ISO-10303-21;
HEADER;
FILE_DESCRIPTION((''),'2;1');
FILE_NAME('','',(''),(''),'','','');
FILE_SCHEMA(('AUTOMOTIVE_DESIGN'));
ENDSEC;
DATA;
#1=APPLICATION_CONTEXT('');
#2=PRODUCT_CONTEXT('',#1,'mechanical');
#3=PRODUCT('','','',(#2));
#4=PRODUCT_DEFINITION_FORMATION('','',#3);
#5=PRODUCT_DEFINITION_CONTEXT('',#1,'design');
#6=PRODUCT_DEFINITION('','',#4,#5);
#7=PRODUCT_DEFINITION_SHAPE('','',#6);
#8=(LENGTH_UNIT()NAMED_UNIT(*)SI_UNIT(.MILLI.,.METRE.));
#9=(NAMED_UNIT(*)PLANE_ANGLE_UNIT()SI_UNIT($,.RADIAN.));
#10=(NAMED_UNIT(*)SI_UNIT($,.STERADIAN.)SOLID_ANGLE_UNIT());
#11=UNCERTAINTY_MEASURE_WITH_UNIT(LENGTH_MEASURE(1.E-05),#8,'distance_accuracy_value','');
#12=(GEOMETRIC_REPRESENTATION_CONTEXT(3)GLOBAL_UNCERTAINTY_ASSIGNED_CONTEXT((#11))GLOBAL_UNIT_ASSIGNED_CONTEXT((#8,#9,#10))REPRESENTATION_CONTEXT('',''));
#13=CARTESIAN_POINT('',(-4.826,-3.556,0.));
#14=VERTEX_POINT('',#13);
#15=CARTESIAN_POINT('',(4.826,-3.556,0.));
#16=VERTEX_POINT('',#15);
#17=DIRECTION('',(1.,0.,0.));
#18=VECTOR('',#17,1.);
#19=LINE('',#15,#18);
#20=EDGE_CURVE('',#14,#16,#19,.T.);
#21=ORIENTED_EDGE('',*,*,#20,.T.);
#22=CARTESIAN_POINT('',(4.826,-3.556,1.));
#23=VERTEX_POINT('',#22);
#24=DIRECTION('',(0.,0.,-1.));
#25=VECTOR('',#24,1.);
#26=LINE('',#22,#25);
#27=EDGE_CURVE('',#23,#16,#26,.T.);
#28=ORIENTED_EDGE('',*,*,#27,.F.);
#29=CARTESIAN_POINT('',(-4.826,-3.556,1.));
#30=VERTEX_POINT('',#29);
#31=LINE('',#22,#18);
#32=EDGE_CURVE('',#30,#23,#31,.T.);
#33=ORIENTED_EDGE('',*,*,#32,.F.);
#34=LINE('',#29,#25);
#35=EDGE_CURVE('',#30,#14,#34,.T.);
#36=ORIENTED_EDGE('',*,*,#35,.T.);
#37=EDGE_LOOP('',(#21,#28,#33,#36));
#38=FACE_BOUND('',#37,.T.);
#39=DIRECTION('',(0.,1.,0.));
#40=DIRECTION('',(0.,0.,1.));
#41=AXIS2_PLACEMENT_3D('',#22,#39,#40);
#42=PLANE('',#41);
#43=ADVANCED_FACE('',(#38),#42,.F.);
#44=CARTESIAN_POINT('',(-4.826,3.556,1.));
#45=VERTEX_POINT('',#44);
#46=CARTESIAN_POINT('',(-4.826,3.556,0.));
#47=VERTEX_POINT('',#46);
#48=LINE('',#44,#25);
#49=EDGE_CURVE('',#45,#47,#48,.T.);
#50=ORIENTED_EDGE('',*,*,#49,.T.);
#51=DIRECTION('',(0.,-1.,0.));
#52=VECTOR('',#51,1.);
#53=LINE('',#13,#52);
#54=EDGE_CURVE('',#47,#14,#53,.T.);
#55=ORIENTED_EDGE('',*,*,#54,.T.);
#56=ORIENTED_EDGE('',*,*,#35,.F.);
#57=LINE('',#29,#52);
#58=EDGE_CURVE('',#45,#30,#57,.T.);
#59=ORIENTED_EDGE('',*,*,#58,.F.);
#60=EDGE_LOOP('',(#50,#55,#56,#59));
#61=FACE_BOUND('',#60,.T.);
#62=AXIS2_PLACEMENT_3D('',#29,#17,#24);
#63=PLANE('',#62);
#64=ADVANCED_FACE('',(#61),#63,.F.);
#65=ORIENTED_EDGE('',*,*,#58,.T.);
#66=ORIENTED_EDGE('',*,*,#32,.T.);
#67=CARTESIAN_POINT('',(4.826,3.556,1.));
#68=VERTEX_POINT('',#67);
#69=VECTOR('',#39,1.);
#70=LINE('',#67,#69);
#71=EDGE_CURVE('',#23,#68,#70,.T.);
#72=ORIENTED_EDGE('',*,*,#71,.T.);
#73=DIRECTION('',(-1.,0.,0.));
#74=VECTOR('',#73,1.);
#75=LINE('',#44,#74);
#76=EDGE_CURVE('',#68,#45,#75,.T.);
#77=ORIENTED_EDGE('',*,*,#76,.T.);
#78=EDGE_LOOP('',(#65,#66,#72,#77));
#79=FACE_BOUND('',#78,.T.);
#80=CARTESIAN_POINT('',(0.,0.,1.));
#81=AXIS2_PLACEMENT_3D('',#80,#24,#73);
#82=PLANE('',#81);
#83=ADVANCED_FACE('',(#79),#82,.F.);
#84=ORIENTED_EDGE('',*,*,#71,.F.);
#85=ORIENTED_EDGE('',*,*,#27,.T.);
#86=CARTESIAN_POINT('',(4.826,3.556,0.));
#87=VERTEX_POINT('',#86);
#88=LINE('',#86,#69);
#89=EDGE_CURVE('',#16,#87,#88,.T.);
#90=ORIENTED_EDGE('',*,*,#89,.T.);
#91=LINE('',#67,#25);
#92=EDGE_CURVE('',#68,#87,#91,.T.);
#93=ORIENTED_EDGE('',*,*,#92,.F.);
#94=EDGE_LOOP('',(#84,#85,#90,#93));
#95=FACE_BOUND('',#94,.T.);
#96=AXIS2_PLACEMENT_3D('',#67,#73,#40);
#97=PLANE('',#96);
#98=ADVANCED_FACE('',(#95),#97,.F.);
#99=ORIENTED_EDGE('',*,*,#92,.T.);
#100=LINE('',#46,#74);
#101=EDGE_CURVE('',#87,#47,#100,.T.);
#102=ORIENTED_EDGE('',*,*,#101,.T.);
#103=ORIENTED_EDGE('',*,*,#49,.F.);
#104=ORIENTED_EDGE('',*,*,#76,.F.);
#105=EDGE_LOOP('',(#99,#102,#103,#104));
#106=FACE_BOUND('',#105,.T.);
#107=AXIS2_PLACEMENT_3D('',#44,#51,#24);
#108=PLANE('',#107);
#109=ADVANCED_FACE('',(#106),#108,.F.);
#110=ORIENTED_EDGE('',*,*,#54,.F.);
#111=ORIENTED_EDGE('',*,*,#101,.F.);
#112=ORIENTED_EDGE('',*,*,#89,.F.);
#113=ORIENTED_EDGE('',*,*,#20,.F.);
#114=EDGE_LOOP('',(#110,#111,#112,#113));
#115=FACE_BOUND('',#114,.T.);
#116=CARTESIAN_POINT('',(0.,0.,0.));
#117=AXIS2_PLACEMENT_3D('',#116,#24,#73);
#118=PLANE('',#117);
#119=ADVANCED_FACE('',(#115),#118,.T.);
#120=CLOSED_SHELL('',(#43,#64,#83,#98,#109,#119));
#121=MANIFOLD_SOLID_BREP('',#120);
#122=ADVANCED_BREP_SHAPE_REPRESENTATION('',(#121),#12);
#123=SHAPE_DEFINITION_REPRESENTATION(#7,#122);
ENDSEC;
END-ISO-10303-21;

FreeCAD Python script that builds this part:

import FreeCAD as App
import Part
import Sketcher

V = App.Vector
Q = App.Units.Quantity

doc = App.newDocument("Part")
body = doc.addObject("PartDesign::Body", "Body")

sketch1 = body.newObject("Sketcher::SketchObject", "Sketch")
sketch1.AttachmentSupport = (doc.getObject("XY_Plane"), [""])
sketch1.MapMode = "FlatFace"
sketch1.addGeometry(Part.LineSegment(V(-4.826, 3.556, 0), V(-4.826, -3.556, 0)), False)
sketch1.addGeometry(Part.LineSegment(V(-4.826, -3.556, 0), V(4.826, -3.556, 0)), False)
sketch1.addGeometry(Part.LineSegment(V(4.826, -3.556, 0), V(4.826, 3.556, 0)), False)
sketch1.addGeometry(Part.LineSegment(V(4.826, 3.556, 0), V(-4.826, 3.556, 0)), False)
sketch1.addConstraint(Sketcher.Constraint("Coincident", 0, 2, 1, 1))
sketch1.addConstraint(Sketcher.Constraint("Coincident", 1, 2, 2, 1))
sketch1.addConstraint(Sketcher.Constraint("Coincident", 2, 2, 3, 1))
sketch1.addConstraint(Sketcher.Constraint("Coincident", 3, 2, 0, 1))
sketch1.addConstraint(Sketcher.Constraint("Vertical", 0))
sketch1.addConstraint(Sketcher.Constraint("Horizontal", 1))
sketch1.addConstraint(Sketcher.Constraint("Vertical", 2))
sketch1.addConstraint(Sketcher.Constraint("Horizontal", 3))
sketch1.addConstraint(Sketcher.Constraint("Symmetric", 0, 2, 2, 2, -1, 1))
sketch1.addConstraint(Sketcher.Constraint("DistanceX", 1, 1, 1, 2, Q("0.38 in")))
sketch1.addConstraint(Sketcher.Constraint("DistanceY", 0, 2, 0, 1, Q("0.28 in")))
pad1 = body.newObject("PartDesign::Pad", "Pad")
pad1.Profile = sketch1
pad1.Length = 1

doc.recompute()
